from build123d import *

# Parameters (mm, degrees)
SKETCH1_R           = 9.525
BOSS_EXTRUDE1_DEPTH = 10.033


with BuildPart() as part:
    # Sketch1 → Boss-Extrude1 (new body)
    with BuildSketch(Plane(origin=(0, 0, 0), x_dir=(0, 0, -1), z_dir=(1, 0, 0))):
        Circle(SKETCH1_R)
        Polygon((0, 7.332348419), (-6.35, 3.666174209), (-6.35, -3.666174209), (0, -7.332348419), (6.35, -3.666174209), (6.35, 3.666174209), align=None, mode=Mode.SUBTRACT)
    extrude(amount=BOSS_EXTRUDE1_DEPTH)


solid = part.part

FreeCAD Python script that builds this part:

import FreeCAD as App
import Part
import Sketcher

V = App.Vector
Q = App.Units.Quantity


def add_polygon(sketch, points):
    """Adds a closed chain of lines whose ends are joined by coincident constraints."""
    first, n = sketch.GeometryCount, len(points)
    for a, b in zip(points, points[1:] + points[:1]):
        sketch.addGeometry(Part.LineSegment(App.Vector(*a, 0), App.Vector(*b, 0)), False)
    for i in range(n):
        sketch.addConstraint(Sketcher.Constraint("Coincident", first + i, 2, first + (i + 1) % n, 1))

doc = App.newDocument("Part")
body = doc.addObject("PartDesign::Body", "Body")

# Sketch on YZ plane
sketch1 = body.newObject("Sketcher::SketchObject", "Sketch")
sketch1.AttachmentSupport = (doc.getObject("YZ_Plane"), [""])
sketch1.MapMode = "FlatFace"
sketch1.addGeometry(Part.Circle(V(0, 0, 0), V(0, 0, 1), 10), False)  # 0
add_polygon(sketch1, [(4, 6), (7, 0), (4, -6), (-4, -6), (-7, 0), (-4, 6)])  # lines 1-6
sketch1.addConstraint(Sketcher.Constraint("Horizontal", 3))
sketch1.addConstraint(Sketcher.Constraint("Horizontal", 6))
sketch1.addConstraint(Sketcher.Constraint("Coincident", 0, 3, -1, 1))
sketch1.addConstraint(Sketcher.Constraint("Symmetric", 1, 2, 4, 2, -1, 1))
sketch1.addConstraint(Sketcher.Constraint("Symmetric", 2, 2, 5, 2, -1, 1))
sketch1.addConstraint(Sketcher.Constraint("PointOnObject", 1, 2, -1))
sketch1.addConstraint(Sketcher.Constraint("Parallel", 1, 4))
sketch1.addConstraint(Sketcher.Constraint("Vertical", 3, 2, 5, 2))
sketch1.addConstraint(Sketcher.Constraint("Diameter", 0, Q("0.75 in")))
sketch1.addConstraint(Sketcher.Constraint("Angle", 1, Q("-60 deg")))
sketch1.addConstraint(Sketcher.Constraint("DistanceY", 3, 2, 5, 2, Q("0.5 in")))
sketch1.addConstraint(Sketcher.Constraint("DistanceX", 3, 2, 3, 1, 7.332348))
pad1 = body.newObject("PartDesign::Pad", "Pad")
pad1.Profile = sketch1
pad1.Length = Q("0.395 in")

doc.recompute()
